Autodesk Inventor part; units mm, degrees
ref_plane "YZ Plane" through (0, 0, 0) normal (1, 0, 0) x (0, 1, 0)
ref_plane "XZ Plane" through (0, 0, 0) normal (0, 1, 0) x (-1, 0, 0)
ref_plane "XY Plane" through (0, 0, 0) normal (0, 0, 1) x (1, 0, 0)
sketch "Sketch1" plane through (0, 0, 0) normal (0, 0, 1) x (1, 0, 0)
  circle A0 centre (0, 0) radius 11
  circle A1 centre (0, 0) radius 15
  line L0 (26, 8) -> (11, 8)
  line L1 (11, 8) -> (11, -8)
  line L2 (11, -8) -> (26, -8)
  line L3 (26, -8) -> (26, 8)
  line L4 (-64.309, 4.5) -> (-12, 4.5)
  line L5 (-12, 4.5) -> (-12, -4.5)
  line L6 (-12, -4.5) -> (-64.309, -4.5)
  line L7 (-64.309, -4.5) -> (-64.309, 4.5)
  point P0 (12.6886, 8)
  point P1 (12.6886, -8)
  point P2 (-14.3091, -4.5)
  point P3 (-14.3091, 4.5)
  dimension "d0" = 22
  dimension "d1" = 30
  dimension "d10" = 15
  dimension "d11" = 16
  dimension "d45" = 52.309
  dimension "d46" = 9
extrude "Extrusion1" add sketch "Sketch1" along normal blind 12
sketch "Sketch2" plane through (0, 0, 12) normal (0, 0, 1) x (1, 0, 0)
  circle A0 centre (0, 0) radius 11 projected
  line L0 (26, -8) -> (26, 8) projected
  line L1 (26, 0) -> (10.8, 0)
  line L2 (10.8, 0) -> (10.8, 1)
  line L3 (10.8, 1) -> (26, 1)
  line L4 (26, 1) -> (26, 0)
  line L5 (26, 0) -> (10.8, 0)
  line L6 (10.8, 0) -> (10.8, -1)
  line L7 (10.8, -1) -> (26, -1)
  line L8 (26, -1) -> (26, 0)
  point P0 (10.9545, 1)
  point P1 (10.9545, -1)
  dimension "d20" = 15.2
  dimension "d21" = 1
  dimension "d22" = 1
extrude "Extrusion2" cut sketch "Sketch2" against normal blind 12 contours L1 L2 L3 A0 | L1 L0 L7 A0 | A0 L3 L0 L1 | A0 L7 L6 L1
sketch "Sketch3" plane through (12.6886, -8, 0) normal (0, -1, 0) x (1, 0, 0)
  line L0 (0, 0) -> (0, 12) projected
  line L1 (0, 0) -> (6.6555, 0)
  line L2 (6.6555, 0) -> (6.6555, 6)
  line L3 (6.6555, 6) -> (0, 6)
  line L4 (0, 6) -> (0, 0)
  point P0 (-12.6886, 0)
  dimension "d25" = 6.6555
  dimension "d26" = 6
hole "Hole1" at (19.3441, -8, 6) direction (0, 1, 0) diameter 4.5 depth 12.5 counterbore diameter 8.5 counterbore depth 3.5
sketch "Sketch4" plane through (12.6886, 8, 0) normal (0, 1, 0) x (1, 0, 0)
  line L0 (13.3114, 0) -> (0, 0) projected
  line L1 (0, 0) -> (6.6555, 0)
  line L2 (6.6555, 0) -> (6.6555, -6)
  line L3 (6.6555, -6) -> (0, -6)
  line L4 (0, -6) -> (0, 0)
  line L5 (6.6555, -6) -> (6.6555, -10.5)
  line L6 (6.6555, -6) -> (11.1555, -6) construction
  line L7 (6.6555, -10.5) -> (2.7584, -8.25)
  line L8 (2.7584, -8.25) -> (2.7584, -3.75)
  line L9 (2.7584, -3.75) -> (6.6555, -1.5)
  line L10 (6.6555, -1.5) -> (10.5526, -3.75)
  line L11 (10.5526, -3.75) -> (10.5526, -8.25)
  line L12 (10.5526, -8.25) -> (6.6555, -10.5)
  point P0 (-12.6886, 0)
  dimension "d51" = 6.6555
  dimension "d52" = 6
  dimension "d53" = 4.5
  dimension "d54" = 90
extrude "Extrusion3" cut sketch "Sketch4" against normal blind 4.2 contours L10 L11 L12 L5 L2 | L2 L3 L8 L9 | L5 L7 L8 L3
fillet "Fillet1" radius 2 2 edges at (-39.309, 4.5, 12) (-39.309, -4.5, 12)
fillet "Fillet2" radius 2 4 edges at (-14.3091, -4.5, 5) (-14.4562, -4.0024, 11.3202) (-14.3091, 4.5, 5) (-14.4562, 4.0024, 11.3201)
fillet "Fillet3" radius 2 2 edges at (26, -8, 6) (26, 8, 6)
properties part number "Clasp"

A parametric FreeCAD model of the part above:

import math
import FreeCAD as App
import Part
import Sketcher
from FreeCAD import Vector
Q = App.Units.Quantity


def edges_at(feature, points):
    """Names of the edges that pass closest to the given points."""
    edges = feature.Shape.Edges
    near = lambda p: min(range(len(edges)), key=lambda i: edges[i].distToShape(Part.Vertex(*p))[0])
    return sorted({f"Edge{near(p) + 1}" for p in points})


def add_polygon(sketch, points):
    """Adds a closed chain of lines whose ends are joined by coincident constraints."""
    first, n = sketch.GeometryCount, len(points)
    for a, b in zip(points, points[1:] + points[:1]):
        sketch.addGeometry(Part.LineSegment(App.Vector(*a, 0), App.Vector(*b, 0)), False)
    for i in range(n):
        sketch.addConstraint(Sketcher.Constraint("Coincident", first + i, 2, first + (i + 1) % n, 1))

doc = App.newDocument("Part")
body = doc.addObject("PartDesign::Body", "Body")

# Sketch on XY plane
sketch1 = body.newObject("Sketcher::SketchObject", "Sketch")
sketch1.AttachmentSupport = (doc.getObject("XY_Plane"), [""])
sketch1.MapMode = "FlatFace"
sketch1.addGeometry(Part.ArcOfCircle(Part.Circle(Vector(0, 0, 0), Vector(0, 0, 1), 15), math.radians(-163), math.radians(-32)), False)
sketch1.addGeometry(Part.LineSegment(Vector(13, -8, 0), Vector(26, -8, 0)), False)
sketch1.addGeometry(Part.LineSegment(Vector(26, -8, 0), Vector(26, 8, 0)), False)
sketch1.addGeometry(Part.LineSegment(Vector(26, 8, 0), Vector(13, 8, 0)), False)
sketch1.addGeometry(Part.ArcOfCircle(Part.Circle(Vector(0, 0, 0), Vector(0, 0, 1), 15), math.radians(32), math.radians(163)), False)
sketch1.addGeometry(Part.LineSegment(Vector(-14, 4, 0), Vector(-64, 4, 0)), False)
sketch1.addGeometry(Part.LineSegment(Vector(-64, 4, 0), Vector(-64, -4, 0)), False)
sketch1.addGeometry(Part.LineSegment(Vector(-64, -4, 0), Vector(-14, -4, 0)), False)
sketch1.addGeometry(Part.Circle(Vector(0, 0, 0), Vector(0, 0, 1), 11), False)
sketch1.addConstraint(Sketcher.Constraint("Coincident", 0, 2, 1, 1))
sketch1.addConstraint(Sketcher.Constraint("Coincident", 1, 2, 2, 1))
sketch1.addConstraint(Sketcher.Constraint("Coincident", 2, 2, 3, 1))
sketch1.addConstraint(Sketcher.Constraint("Coincident", 3, 2, 4, 1))
sketch1.addConstraint(Sketcher.Constraint("Coincident", 4, 2, 5, 1))
sketch1.addConstraint(Sketcher.Constraint("Coincident", 5, 2, 6, 1))
sketch1.addConstraint(Sketcher.Constraint("Coincident", 6, 2, 7, 1))
sketch1.addConstraint(Sketcher.Constraint("Coincident", 7, 2, 0, 1))
sketch1.addConstraint(Sketcher.Constraint("Horizontal", 1))
sketch1.addConstraint(Sketcher.Constraint("Vertical", 2))
sketch1.addConstraint(Sketcher.Constraint("Horizontal", 3))
sketch1.addConstraint(Sketcher.Constraint("Horizontal", 5))
sketch1.addConstraint(Sketcher.Constraint("Vertical", 6))
sketch1.addConstraint(Sketcher.Constraint("Horizontal", 7))
sketch1.addConstraint(Sketcher.Constraint("Coincident", 0, 3, -1, 1))
sketch1.addConstraint(Sketcher.Constraint("Coincident", 4, 3, -1, 1))
sketch1.addConstraint(Sketcher.Constraint("Coincident", 8, 3, -1, 1))
sketch1.addConstraint(Sketcher.Constraint("Equal", 0, 4))
sketch1.addConstraint(Sketcher.Constraint("Vertical", 0, 2, 3, 2))
sketch1.addConstraint(Sketcher.Constraint("Vertical", 4, 2, 7, 2))
sketch1.addConstraint(Sketcher.Constraint("Diameter", 8, Q("22 mm")))
sketch1.addConstraint(Sketcher.Constraint("Radius", 0, Q("15 mm")))
sketch1.addConstraint(Sketcher.Constraint("DistanceY", 2, 1, 2, 2, Q("16 mm")))
sketch1.addConstraint(Sketcher.Constraint("DistanceY", 6, 2, 6, 1, Q("9 mm")))
sketch1.addConstraint(Sketcher.Constraint("DistanceX", 5, 2, 5, 1, Q("50 mm")))
sketch1.addConstraint(Sketcher.Constraint("DistanceX", -1, 1, 1, 2, Q("26 mm")))
pad1 = body.newObject("PartDesign::Pad", "Pad")
pad1.Profile = sketch1
pad1.Length = 12

# Sketch on XY plane
sketch2 = body.newObject("Sketcher::SketchObject", "Sketch001")
sketch2.AttachmentSupport = (doc.getObject("XY_Plane"), [""])
sketch2.MapMode = "FlatFace"
sketch2.AttachmentOffset = App.Placement(Vector(0, 0, 12), App.Rotation())
add_polygon(sketch2, [(10.8, 1), (10.8, -1), (26, -1), (26, 1)])  # lines 0-3
sketch2.addConstraint(Sketcher.Constraint("Vertical", 0))
sketch2.addConstraint(Sketcher.Constraint("Horizontal", 1))
sketch2.addConstraint(Sketcher.Constraint("Vertical", 2))
sketch2.addConstraint(Sketcher.Constraint("Horizontal", 3))
sketch2.addConstraint(Sketcher.Constraint("DistanceX", 1, 1, 1, 2, Q("15.2 mm")))
sketch2.addConstraint(Sketcher.Constraint("DistanceY", 0, 2, -1, 1, Q("1 mm")))
sketch2.addConstraint(Sketcher.Constraint("DistanceY", -1, 1, 2, 2, Q("1 mm")))
sketch2.addConstraint(Sketcher.Constraint("DistanceX", -1, 1, 1, 2, Q("26 mm")))
pocket1 = body.newObject("PartDesign::Pocket", "Pocket")
pocket1.Profile = sketch2
pocket1.Length = 12

# Sketch on XZ plane
sketch3 = body.newObject("Sketcher::SketchObject", "Sketch002")
sketch3.AttachmentSupport = (doc.getObject("XZ_Plane"), [""])
sketch3.MapMode = "FlatFace"
sketch3.AttachmentOffset = App.Placement(Vector(0, 0, 8), App.Rotation())
sketch3.addGeometry(Part.Circle(Vector(19.3, 6, 0), Vector(0, 0, 1), 2.2), False)
sketch3.addConstraint(Sketcher.Constraint("Diameter", 0, Q("4.5 mm")))
sketch3.addConstraint(Sketcher.Constraint("DistanceY", -1, 1, 0, 3, Q("6 mm")))
sketch3.addConstraint(Sketcher.Constraint("DistanceX", -1, 1, 0, 3, Q("19.344 mm")))
doc.recompute()
hole = body.newObject("PartDesign::Hole", "Hole")
hole.Profile = sketch3
hole.ThreadType = "None"
hole.Diameter = 4.5
hole.DepthType = "Dimension"
hole.Depth = 12.5
hole.DrillPoint = "Flat"
hole.HoleCutType = "Counterbore"
hole.HoleCutDiameter = 8.5
hole.HoleCutDepth = 3.5

# Sketch on XZ plane
sketch4 = body.newObject("Sketcher::SketchObject", "Sketch003")
sketch4.AttachmentSupport = (doc.getObject("XZ_Plane"), [""])
sketch4.MapMode = "FlatFace"
sketch4.AttachmentOffset = App.Placement(Vector(0, 0, -8), App.Rotation())
add_polygon(sketch4, [(23.2, 3.8), (19.3, 1.5), (15.4, 3.8), (15.4, 8.2), (19.3, 10.5), (23.2, 8.2)])  # lines 0-5
sketch4.addConstraint(Sketcher.Constraint("Vertical", 2))
sketch4.addConstraint(Sketcher.Constraint("Vertical", 5))
sketch4.addConstraint(Sketcher.Constraint("Parallel", 0, 3))
sketch4.addConstraint(Sketcher.Constraint("Parallel", 1, 4))
sketch4.addConstraint(Sketcher.Constraint("Horizontal", 2, 2, 4, 2))
sketch4.addConstraint(Sketcher.Constraint("Horizontal", 1, 2, 5, 2))
sketch4.addConstraint(Sketcher.Constraint("Vertical", 0, 2, 3, 2))
sketch4.addConstraint(Sketcher.Constraint("DistanceY", 2, 1, 2, 2, Q("4.5 mm")))
sketch4.addConstraint(Sketcher.Constraint("Distance", 0, Q("4.5 mm")))
sketch4.addConstraint(Sketcher.Constraint("Angle", 0, Q("-150 deg")))
sketch4.addConstraint(Sketcher.Constraint("DistanceY", -1, 1, 0, 2, Q("1.5 mm")))
sketch4.addConstraint(Sketcher.Constraint("DistanceX", -1, 1, 0, 2, Q("19.344 mm")))
pocket2 = body.newObject("PartDesign::Pocket", "Pocket001")
pocket2.Profile = sketch4
pocket2.Length = 4.2
pocket2.Reversed = True
doc.recompute()

fillet = body.newObject("PartDesign::Fillet", "Fillet")
fillet.Base = (pocket2, edges_at(pocket2, [(-39.309, 4.5, 12), (-39.309, -4.5, 12)]))
fillet.Radius = 2
doc.recompute()

fillet2 = body.newObject("PartDesign::Fillet", "Fillet001")
fillet2.Base = (fillet, edges_at(fillet, [
    (-14.309, -4.5, 5),
    (-14.456, -4.002, 11.32),
    (-14.309, 4.5, 5),
    (-14.456, 4.002, 11.32),
]))
fillet2.Radius = 2
doc.recompute()

fillet3 = body.newObject("PartDesign::Fillet", "Fillet002")
fillet3.Base = (fillet2, edges_at(fillet2, [(26, -8, 6), (26, 8, 6)]))
fillet3.Radius = 2

doc.recompute()
